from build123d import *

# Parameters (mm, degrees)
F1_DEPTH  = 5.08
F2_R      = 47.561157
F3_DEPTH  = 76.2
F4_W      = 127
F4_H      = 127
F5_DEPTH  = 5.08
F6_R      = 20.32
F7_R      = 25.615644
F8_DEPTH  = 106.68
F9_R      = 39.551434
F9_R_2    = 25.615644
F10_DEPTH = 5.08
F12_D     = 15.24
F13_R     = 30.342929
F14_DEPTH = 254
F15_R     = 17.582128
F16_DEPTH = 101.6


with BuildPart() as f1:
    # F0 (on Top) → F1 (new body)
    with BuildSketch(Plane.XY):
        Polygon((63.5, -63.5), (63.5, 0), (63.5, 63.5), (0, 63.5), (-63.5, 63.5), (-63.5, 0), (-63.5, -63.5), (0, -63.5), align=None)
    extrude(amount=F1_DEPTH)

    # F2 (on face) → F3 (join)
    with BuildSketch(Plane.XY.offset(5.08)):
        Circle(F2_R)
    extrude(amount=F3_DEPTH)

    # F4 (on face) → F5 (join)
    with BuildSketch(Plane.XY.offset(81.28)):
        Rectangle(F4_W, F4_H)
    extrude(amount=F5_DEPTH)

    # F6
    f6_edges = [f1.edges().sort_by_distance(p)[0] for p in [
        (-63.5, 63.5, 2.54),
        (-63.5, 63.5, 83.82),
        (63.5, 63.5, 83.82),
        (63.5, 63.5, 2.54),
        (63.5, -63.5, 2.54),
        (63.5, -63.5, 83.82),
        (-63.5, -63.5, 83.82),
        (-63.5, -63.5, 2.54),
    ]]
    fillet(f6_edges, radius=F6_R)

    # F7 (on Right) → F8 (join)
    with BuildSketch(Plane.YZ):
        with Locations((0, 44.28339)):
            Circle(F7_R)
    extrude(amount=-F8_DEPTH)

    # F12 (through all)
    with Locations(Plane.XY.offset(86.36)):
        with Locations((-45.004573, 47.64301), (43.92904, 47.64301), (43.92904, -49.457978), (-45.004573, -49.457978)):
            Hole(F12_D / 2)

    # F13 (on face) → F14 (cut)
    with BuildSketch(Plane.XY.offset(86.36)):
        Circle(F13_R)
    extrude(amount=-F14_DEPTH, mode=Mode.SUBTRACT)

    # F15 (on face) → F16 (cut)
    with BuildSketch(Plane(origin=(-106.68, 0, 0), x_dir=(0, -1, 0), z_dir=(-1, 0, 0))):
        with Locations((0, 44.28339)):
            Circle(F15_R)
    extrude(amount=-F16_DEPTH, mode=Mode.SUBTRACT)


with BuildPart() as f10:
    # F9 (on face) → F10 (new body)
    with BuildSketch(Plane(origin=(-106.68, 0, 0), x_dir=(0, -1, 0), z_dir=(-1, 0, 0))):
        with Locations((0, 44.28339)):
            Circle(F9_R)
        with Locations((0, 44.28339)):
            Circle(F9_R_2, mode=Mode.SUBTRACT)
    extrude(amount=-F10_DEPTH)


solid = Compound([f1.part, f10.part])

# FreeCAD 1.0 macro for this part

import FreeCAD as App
import Part
import Sketcher
Q = App.Units.Quantity


def edges_at(feature, points):
    """Names of the edges that pass closest to the given points."""
    edges = feature.Shape.Edges
    near = lambda p: min(range(len(edges)), key=lambda i: edges[i].distToShape(Part.Vertex(*p))[0])
    return sorted({f"Edge{near(p) + 1}" for p in points})

doc = App.newDocument("Part")
params = doc.addObject("Spreadsheet::Sheet", "Params")
for row, (alias, value) in enumerate([
    ("sketch1_width", "5 in"),
    ("pad1_length", "0.2 in"),
    ("pad2_length", "3 in"),
    ("sketch3_width", "5 in"),
    ("pad3_length", "0.2 in"),
    ("fillet_radius", "0.8 in"),
    ("pad4_length", "4.2 in"),
    ("sketch5_diameter", "0.6 in"),
    ("hole_diameter", "0.6 in"),
    ("pocket1_length", "10 in"),
    ("pocket2_length", "4 in"),
    ("pad5_length", "0.2 in"),
], start=1):
    params.set(f"A{row}", alias)
    params.set(f"B{row}", "=" + value)
    params.setAlias(f"B{row}", alias)

body = doc.addObject("PartDesign::Body", "Body")

sketch1 = doc.addObject("Sketcher::SketchObject", "Sketch")
body.addObject(sketch1)
sketch1.AttachmentSupport = (doc.XY_Plane, [""])
sketch1.MapMode = "FlatFace"
sketch1.addGeometry([
    Part.LineSegment(App.Vector(64, -64, 0), App.Vector(64, 64, 0)),
    Part.LineSegment(App.Vector(64, 64, 0), App.Vector(-64, 64, 0)),
    Part.LineSegment(App.Vector(-64, 64, 0), App.Vector(-64, -64, 0)),
    Part.LineSegment(App.Vector(-64, -64, 0), App.Vector(64, -64, 0)),
], False)
sketch1.addConstraint([
    Sketcher.Constraint("Coincident", 0, 2, 1, 1),
    Sketcher.Constraint("Coincident", 1, 2, 2, 1),
    Sketcher.Constraint("Coincident", 2, 2, 3, 1),
    Sketcher.Constraint("Coincident", 3, 2, 0, 1),
    Sketcher.Constraint("Vertical", 0),
    Sketcher.Constraint("Horizontal", 1),
    Sketcher.Constraint("Vertical", 2),
    Sketcher.Constraint("Horizontal", 3),
    Sketcher.Constraint("Symmetric", 0, 2, 2, 2, -1, 1),
    Sketcher.Constraint("Equal", 3, 0),
    Sketcher.Constraint("DistanceX", 1, 2, 1, 1, Q("5 in")),
])
sketch1.setExpression("Constraints[10]", "Params.sketch1_width")
pad1 = doc.addObject("PartDesign::Pad", "Pad")
body.addObject(pad1)
pad1.Profile = sketch1
pad1.setExpression("Length", "Params.pad1_length")

sketch2 = doc.addObject("Sketcher::SketchObject", "Sketch001")
body.addObject(sketch2)
sketch2.AttachmentSupport = (doc.XY_Plane, [""])
sketch2.MapMode = "FlatFace"
sketch2.AttachmentOffset = App.Placement(App.Vector(0, 0, 0.2 * 25.4), App.Rotation())
sketch2.addGeometry(Part.Circle(App.Vector(0, 0, 0), App.Vector(0, 0, 1), 48), False)
sketch2.addConstraint([
    Sketcher.Constraint("Coincident", 0, 3, -1, 1),
    Sketcher.Constraint("Diameter", 0, Q("95.122314 mm")),
])
pad2 = doc.addObject("PartDesign::Pad", "Pad001")
body.addObject(pad2)
pad2.Profile = sketch2
pad2.setExpression("Length", "Params.pad2_length")

sketch3 = doc.addObject("Sketcher::SketchObject", "Sketch002")
body.addObject(sketch3)
sketch3.AttachmentSupport = (doc.XY_Plane, [""])
sketch3.MapMode = "FlatFace"
sketch3.AttachmentOffset = App.Placement(App.Vector(0, 0, 3.2 * 25.4), App.Rotation())
sketch3.addGeometry([
    Part.LineSegment(App.Vector(-64, 64, 0), App.Vector(-64, -64, 0)),
    Part.LineSegment(App.Vector(-64, -64, 0), App.Vector(64, -64, 0)),
    Part.LineSegment(App.Vector(64, -64, 0), App.Vector(64, 64, 0)),
    Part.LineSegment(App.Vector(64, 64, 0), App.Vector(-64, 64, 0)),
], False)
sketch3.addConstraint([
    Sketcher.Constraint("Coincident", 0, 2, 1, 1),
    Sketcher.Constraint("Coincident", 1, 2, 2, 1),
    Sketcher.Constraint("Coincident", 2, 2, 3, 1),
    Sketcher.Constraint("Coincident", 3, 2, 0, 1),
    Sketcher.Constraint("Vertical", 0),
    Sketcher.Constraint("Horizontal", 1),
    Sketcher.Constraint("Vertical", 2),
    Sketcher.Constraint("Horizontal", 3),
    Sketcher.Constraint("Symmetric", 0, 2, 2, 2, -1, 1),
    Sketcher.Constraint("Equal", 3, 0),
    Sketcher.Constraint("DistanceX", 1, 1, 1, 2, Q("5 in")),
])
sketch3.setExpression("Constraints[10]", "Params.sketch3_width")
pad3 = doc.addObject("PartDesign::Pad", "Pad002")
body.addObject(pad3)
pad3.Profile = sketch3
pad3.setExpression("Length", "Params.pad3_length")
doc.recompute()

fillet = doc.addObject("PartDesign::Fillet", "Fillet")
body.addObject(fillet)
fillet.Base = (pad3, edges_at(pad3, [
    (-63.5, 63.5, 2.54),
    (-63.5, 63.5, 83.82),
    (63.5, 63.5, 83.82),
    (63.5, 63.5, 2.54),
    (63.5, -63.5, 2.54),
    (63.5, -63.5, 83.82),
    (-63.5, -63.5, 83.82),
    (-63.5, -63.5, 2.54),
]))
fillet.setExpression("Radius", "Params.fillet_radius")

sketch4 = doc.addObject("Sketcher::SketchObject", "Sketch003")
body.addObject(sketch4)
sketch4.AttachmentSupport = (doc.YZ_Plane, [""])
sketch4.MapMode = "FlatFace"
sketch4.addGeometry(Part.Circle(App.Vector(0, 44, 0), App.Vector(0, 0, 1), 26), False)
sketch4.addConstraint([
    Sketcher.Constraint("PointOnObject", 0, 3, -2),
    Sketcher.Constraint("Diameter", 0, Q("51.231288 mm")),
    Sketcher.Constraint("DistanceY", -1, 1, 0, 3, Q("44.28339 mm")),
])
pad4 = doc.addObject("PartDesign::Pad", "Pad003")
body.addObject(pad4)
pad4.Profile = sketch4
pad4.setExpression("Length", "Params.pad4_length")
pad4.Reversed = True

sketch5 = doc.addObject("Sketcher::SketchObject", "Sketch004")
body.addObject(sketch5)
sketch5.AttachmentSupport = (doc.XY_Plane, [""])
sketch5.MapMode = "FlatFace"
sketch5.AttachmentOffset = App.Placement(App.Vector(0, 0, 3.4 * 25.4), App.Rotation())
sketch5.addGeometry([
    Part.Circle(App.Vector(-45, 48, 0), App.Vector(0, 0, 1), 8),
    Part.Circle(App.Vector(44, 48, 0), App.Vector(0, 0, 1), 8),
    Part.Circle(App.Vector(44, -49, 0), App.Vector(0, 0, 1), 8),
    Part.Circle(App.Vector(-45, -49, 0), App.Vector(0, 0, 1), 8),
], False)
sketch5.addConstraint([
    Sketcher.Constraint("Equal", 0, 1),
    Sketcher.Constraint("Equal", 1, 2),
    Sketcher.Constraint("Equal", 2, 3),
    Sketcher.Constraint("Horizontal", 0, 3, 1, 3),
    Sketcher.Constraint("Horizontal", 2, 3, 3, 3),
    Sketcher.Constraint("Vertical", 1, 3, 2, 3),
    Sketcher.Constraint("Vertical", 0, 3, 3, 3),
    Sketcher.Constraint("Diameter", 0, Q("0.6 in")),
    Sketcher.Constraint("DistanceY", -1, 1, 0, 3, Q("47.64301 mm")),
    Sketcher.Constraint("DistanceX", -1, 1, 1, 3, Q("43.92904 mm")),
    Sketcher.Constraint("DistanceY", 2, 3, 1, 3, Q("97.100988 mm")),
    Sketcher.Constraint("DistanceX", 0, 3, -1, 1, Q("45.004573 mm")),
])
sketch5.setExpression("Constraints[7]", "Params.sketch5_diameter")
doc.recompute()
hole = doc.addObject("PartDesign::Hole", "Hole")
body.addObject(hole)
hole.Profile = sketch5
hole.ThreadType = "None"
hole.setExpression("Diameter", "Params.hole_diameter")
hole.DepthType = "ThroughAll"

sketch6 = doc.addObject("Sketcher::SketchObject", "Sketch005")
body.addObject(sketch6)
sketch6.AttachmentSupport = (doc.XY_Plane, [""])
sketch6.MapMode = "FlatFace"
sketch6.AttachmentOffset = App.Placement(App.Vector(0, 0, 3.4 * 25.4), App.Rotation())
sketch6.addGeometry(Part.Circle(App.Vector(0, 0, 0), App.Vector(0, 0, 1), 30), False)
sketch6.addConstraint([
    Sketcher.Constraint("Coincident", 0, 3, -1, 1),
    Sketcher.Constraint("Diameter", 0, Q("60.685858 mm")),
])
pocket1 = doc.addObject("PartDesign::Pocket", "Pocket")
body.addObject(pocket1)
pocket1.Profile = sketch6
pocket1.setExpression("Length", "Params.pocket1_length")

sketch7 = doc.addObject("Sketcher::SketchObject", "Sketch006")
body.addObject(sketch7)
sketch7.AttachmentSupport = (doc.YZ_Plane, [""])
sketch7.MapMode = "FlatFace"
sketch7.AttachmentOffset = App.Placement(App.Vector(0, 0, -4.2 * 25.4), App.Rotation())
sketch7.addGeometry(Part.Circle(App.Vector(0, 44, 0), App.Vector(0, 0, 1), 18), False)
sketch7.addConstraint([
    Sketcher.Constraint("PointOnObject", 0, 3, -2),
    Sketcher.Constraint("Diameter", 0, Q("35.164256 mm")),
    Sketcher.Constraint("DistanceY", -1, 1, 0, 3, Q("44.28339 mm")),
])
pocket2 = doc.addObject("PartDesign::Pocket", "Pocket001")
body.addObject(pocket2)
pocket2.Profile = sketch7
pocket2.setExpression("Length", "Params.pocket2_length")
pocket2.Reversed = True
body2 = doc.addObject("PartDesign::Body", "Body001")

sketch8 = doc.addObject("Sketcher::SketchObject", "Sketch007")
body2.addObject(sketch8)
sketch8.AttachmentSupport = (doc.getObject("YZ_Plane001"), [""])
sketch8.MapMode = "FlatFace"
sketch8.AttachmentOffset = App.Placement(App.Vector(0, 0, -4.2 * 25.4), App.Rotation())
sketch8.addGeometry([
    Part.Circle(App.Vector(0, 44, 0), App.Vector(0, 0, 1), 40),
    Part.Circle(App.Vector(0, 44, 0), App.Vector(0, 0, 1), 26),
], False)
sketch8.addConstraint([
    Sketcher.Constraint("Coincident", 1, 3, 0, 3),
    Sketcher.Constraint("PointOnObject", 0, 3, -2),
    Sketcher.Constraint("Diameter", 0, Q("79.102868 mm")),
    Sketcher.Constraint("Diameter", 1, Q("51.231288 mm")),
    Sketcher.Constraint("DistanceY", -1, 1, 0, 3, Q("44.28339 mm")),
])
pad5 = doc.addObject("PartDesign::Pad", "Pad004")
body2.addObject(pad5)
pad5.Profile = sketch8
pad5.setExpression("Length", "Params.pad5_length")

doc.recompute()
